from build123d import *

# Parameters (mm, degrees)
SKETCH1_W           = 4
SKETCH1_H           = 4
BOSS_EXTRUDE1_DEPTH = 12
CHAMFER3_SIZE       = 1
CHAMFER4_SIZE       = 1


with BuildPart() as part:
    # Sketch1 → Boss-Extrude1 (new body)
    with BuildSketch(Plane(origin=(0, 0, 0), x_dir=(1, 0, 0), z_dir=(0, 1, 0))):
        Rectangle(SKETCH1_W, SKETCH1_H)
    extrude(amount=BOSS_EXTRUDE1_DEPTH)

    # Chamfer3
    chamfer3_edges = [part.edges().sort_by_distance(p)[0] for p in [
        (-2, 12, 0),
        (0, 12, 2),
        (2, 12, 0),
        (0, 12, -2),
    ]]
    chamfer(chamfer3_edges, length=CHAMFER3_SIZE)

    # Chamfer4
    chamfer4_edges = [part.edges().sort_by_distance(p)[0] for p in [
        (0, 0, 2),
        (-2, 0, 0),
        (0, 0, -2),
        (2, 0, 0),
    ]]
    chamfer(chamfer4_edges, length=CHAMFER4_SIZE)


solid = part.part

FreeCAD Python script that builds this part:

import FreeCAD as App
import Part
import Sketcher


def edges_at(feature, points):
    """Names of the edges that pass closest to the given points."""
    edges = feature.Shape.Edges
    near = lambda p: min(range(len(edges)), key=lambda i: edges[i].distToShape(Part.Vertex(*p))[0])
    return sorted({f"Edge{near(p) + 1}" for p in points})


def add_polygon(sketch, points):
    """Adds a closed chain of lines whose ends are joined by coincident constraints."""
    first, n = sketch.GeometryCount, len(points)
    for a, b in zip(points, points[1:] + points[:1]):
        sketch.addGeometry(Part.LineSegment(App.Vector(*a, 0), App.Vector(*b, 0)), False)
    for i in range(n):
        sketch.addConstraint(Sketcher.Constraint("Coincident", first + i, 2, first + (i + 1) % n, 1))

doc = App.newDocument("Part")
body = doc.addObject("PartDesign::Body", "Body")

# Sketch on XZ plane
sketch1 = body.newObject("Sketcher::SketchObject", "Sketch")
sketch1.AttachmentSupport = (doc.getObject("XZ_Plane"), [""])
sketch1.MapMode = "FlatFace"
add_polygon(sketch1, [(-2, -2), (-2, 2), (2, 2), (2, -2)])  # lines 0-3
sketch1.addConstraint([
    Sketcher.Constraint("Vertical", 0),
    Sketcher.Constraint("Horizontal", 1),
    Sketcher.Constraint("Vertical", 2),
    Sketcher.Constraint("Horizontal", 3),
    Sketcher.Constraint("Symmetric", 0, 2, 2, 2, -1, 1),
    Sketcher.Constraint("Equal", 3, 0),
    Sketcher.Constraint("DistanceX", 1, 1, 1, 2, 4.0),
])
pad1 = body.newObject("PartDesign::Pad", "Pad")
pad1.Profile = sketch1
pad1.Length = 12
pad1.Reversed = True
doc.recompute()

chamfer = body.newObject("PartDesign::Chamfer", "Chamfer")
chamfer.Base = (pad1, edges_at(pad1, [
    (-2, 12, 0),
    (0, 12, 2),
    (2, 12, 0),
    (0, 12, -2),
]))
chamfer.Size = 1
doc.recompute()

chamfer2 = body.newObject("PartDesign::Chamfer", "Chamfer001")
chamfer2.Base = (chamfer, edges_at(chamfer, [
    (0, 0, 2),
    (-2, 0, 0),
    (0, 0, -2),
    (2, 0, 0),
]))
chamfer2.Size = 1

doc.recompute()
